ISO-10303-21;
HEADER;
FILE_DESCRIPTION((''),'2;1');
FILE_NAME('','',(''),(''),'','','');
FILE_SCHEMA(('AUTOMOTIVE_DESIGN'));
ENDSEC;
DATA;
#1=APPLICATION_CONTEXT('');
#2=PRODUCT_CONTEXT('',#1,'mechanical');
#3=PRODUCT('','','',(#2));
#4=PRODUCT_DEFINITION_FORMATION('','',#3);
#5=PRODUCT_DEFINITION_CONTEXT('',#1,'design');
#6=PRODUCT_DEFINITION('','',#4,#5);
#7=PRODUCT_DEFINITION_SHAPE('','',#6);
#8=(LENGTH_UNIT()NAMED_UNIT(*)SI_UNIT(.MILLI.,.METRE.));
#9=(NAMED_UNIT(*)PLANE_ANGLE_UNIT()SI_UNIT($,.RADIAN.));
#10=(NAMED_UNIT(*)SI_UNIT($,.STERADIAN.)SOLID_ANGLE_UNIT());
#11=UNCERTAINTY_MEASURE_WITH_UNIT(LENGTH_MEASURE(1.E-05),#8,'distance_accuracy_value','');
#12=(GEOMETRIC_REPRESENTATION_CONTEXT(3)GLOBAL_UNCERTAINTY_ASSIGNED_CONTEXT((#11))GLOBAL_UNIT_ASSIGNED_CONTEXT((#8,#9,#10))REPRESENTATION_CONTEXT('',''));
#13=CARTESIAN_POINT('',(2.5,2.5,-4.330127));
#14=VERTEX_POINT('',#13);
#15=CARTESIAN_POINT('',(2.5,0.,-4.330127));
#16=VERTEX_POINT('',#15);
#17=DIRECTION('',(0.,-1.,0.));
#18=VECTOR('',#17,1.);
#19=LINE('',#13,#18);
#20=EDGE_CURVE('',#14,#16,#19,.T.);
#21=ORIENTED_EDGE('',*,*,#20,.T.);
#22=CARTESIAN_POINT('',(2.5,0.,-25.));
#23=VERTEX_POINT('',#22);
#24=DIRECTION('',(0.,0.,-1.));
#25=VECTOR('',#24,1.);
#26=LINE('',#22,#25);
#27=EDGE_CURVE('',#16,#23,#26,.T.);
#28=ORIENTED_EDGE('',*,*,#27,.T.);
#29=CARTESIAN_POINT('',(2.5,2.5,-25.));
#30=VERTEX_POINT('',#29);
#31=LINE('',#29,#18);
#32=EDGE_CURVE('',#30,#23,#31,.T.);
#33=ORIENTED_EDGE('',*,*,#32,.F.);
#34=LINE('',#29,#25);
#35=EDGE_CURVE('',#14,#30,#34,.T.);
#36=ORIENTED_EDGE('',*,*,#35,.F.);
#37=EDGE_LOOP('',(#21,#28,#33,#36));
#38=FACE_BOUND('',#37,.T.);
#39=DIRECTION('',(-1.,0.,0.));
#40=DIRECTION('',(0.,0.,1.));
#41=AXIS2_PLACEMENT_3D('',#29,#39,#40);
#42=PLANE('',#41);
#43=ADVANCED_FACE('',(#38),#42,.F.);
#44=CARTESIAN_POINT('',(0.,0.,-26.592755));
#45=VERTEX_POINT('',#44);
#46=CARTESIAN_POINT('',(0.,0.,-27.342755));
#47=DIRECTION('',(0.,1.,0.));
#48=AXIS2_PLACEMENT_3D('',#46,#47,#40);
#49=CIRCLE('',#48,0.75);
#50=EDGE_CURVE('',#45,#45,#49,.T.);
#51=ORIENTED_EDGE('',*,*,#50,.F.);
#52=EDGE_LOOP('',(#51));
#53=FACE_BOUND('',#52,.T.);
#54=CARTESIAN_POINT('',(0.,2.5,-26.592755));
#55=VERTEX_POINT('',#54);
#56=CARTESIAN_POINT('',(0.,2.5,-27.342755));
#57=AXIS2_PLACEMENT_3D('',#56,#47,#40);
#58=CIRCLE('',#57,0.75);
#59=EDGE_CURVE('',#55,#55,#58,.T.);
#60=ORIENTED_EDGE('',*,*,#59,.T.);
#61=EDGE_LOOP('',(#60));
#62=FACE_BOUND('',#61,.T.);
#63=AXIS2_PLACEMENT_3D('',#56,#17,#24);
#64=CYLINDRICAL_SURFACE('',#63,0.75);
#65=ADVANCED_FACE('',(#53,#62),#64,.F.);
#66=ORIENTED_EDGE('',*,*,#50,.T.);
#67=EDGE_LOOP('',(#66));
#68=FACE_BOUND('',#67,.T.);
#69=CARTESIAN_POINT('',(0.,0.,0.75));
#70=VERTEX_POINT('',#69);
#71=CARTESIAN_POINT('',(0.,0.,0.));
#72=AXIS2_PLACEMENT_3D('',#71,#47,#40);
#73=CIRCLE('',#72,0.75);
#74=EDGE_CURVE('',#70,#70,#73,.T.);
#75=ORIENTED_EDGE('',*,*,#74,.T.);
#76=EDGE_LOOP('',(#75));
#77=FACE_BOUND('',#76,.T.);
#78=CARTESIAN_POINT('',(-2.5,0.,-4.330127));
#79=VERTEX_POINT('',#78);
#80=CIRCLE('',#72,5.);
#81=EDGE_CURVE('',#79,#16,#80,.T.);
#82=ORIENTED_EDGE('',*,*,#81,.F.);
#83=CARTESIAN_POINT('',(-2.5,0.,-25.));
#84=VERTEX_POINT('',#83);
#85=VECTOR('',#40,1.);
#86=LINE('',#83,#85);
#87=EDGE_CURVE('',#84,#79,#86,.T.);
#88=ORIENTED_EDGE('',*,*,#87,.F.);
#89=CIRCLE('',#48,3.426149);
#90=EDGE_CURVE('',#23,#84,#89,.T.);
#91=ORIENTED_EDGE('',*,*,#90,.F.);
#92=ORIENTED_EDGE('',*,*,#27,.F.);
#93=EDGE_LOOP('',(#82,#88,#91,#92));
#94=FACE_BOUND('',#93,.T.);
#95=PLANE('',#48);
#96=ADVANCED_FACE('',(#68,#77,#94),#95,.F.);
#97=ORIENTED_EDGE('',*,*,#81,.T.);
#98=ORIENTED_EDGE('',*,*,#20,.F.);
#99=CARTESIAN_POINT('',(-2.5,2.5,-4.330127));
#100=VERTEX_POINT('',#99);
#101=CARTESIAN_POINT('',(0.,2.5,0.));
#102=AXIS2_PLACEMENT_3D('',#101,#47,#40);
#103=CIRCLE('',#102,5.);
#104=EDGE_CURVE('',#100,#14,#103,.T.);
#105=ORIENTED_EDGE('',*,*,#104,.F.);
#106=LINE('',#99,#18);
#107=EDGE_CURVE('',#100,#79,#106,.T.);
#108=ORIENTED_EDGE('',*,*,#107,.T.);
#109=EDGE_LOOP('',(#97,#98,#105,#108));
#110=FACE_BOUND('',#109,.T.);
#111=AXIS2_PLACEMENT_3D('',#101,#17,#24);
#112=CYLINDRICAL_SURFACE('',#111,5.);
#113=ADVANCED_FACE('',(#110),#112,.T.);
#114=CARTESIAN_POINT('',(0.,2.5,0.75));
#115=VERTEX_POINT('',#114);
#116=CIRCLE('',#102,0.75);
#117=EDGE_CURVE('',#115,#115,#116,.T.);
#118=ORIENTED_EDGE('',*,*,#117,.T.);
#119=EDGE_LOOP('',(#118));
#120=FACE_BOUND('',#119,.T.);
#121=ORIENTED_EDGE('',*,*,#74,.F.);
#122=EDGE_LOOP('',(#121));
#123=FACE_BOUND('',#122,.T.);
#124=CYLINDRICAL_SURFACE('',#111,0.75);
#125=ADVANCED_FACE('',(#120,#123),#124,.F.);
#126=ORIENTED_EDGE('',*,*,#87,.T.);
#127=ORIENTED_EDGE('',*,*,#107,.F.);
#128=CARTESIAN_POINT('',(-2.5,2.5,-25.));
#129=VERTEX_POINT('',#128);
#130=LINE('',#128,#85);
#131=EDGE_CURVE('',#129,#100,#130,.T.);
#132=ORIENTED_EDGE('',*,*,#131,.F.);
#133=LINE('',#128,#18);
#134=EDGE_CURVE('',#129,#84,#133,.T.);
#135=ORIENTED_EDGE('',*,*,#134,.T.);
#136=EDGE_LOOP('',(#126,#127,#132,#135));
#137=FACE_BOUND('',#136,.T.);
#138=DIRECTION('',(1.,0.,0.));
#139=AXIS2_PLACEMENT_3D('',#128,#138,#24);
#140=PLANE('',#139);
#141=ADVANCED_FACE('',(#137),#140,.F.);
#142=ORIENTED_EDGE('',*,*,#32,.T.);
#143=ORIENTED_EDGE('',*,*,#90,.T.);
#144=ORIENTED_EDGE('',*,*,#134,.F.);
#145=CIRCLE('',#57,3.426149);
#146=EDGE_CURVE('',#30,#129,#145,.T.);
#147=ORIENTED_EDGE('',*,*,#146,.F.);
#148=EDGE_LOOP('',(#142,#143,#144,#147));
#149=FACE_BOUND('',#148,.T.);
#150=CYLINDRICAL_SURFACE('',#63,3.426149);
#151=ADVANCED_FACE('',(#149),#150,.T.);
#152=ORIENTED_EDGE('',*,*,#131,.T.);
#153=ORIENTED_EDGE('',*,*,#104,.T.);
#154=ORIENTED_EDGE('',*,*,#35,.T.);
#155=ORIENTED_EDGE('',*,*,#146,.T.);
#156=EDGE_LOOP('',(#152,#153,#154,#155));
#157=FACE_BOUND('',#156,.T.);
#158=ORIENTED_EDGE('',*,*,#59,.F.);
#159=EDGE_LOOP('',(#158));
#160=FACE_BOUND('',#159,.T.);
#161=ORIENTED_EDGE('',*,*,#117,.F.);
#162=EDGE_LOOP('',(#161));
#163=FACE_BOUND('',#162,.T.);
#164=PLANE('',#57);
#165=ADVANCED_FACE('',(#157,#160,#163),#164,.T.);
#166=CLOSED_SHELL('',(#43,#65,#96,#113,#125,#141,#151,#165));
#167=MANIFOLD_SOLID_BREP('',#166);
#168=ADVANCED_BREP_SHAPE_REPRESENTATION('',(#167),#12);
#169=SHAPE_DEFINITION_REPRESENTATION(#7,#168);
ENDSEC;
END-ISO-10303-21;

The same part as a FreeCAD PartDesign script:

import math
import FreeCAD as App
import Part
import Sketcher
from FreeCAD import Vector
Q = App.Units.Quantity

doc = App.newDocument("Part")
body = doc.addObject("PartDesign::Body", "Body")

sketch1 = body.newObject("Sketcher::SketchObject", "Sketch")
sketch1.AttachmentSupport = (doc.getObject("XZ_Plane"), [""])
sketch1.MapMode = "FlatFace"
sketch1.addGeometry([
    Part.LineSegment(Vector(-2.5, -25, 0), Vector(-2.5, -4.330127, 0)),
    Part.ArcOfCircle(Part.Circle(Vector(0, 0, 0), Vector(0, 0, 1), 5), math.radians(-60), math.radians(240)),
    Part.LineSegment(Vector(2.5, -4.330127, 0), Vector(2.5, -25, 0)),
    Part.ArcOfCircle(Part.Circle(Vector(0, -27.342755, 0), Vector(0, 0, 1), 3.426149), math.radians(136.859751), math.radians(403.140249)),
    Part.Circle(Vector(0, 0, 0), Vector(0, 0, 1), 0.75),
    Part.Circle(Vector(0, -27.342755, 0), Vector(0, 0, 1), 0.75),
], False)
sketch1.addConstraint([
    Sketcher.Constraint("Coincident", 0, 2, 1, 2),
    Sketcher.Constraint("Coincident", 1, 1, 2, 1),
    Sketcher.Constraint("Coincident", 2, 2, 3, 2),
    Sketcher.Constraint("Coincident", 3, 1, 0, 1),
    Sketcher.Constraint("Vertical", 0),
    Sketcher.Constraint("Vertical", 2),
    Sketcher.Constraint("Coincident", 1, 3, -1, 1),
    Sketcher.Constraint("Coincident", 4, 3, -1, 1),
    Sketcher.Constraint("Coincident", 5, 3, 3, 3),
    Sketcher.Constraint("Equal", 4, 5),
    Sketcher.Constraint("Symmetric", 2, 2, 3, 1, -2),
    Sketcher.Constraint("Radius", 1, Q("5 mm")),
    Sketcher.Constraint("Diameter", 4, Q("1.5 mm")),
    Sketcher.Constraint("DistanceY", 2, 2, -1, 1, Q("25 mm")),
    Sketcher.Constraint("DistanceX", 0, 2, 1, 1, Q("5 mm")),
    Sketcher.Constraint("Radius", 3, Q("3.426149 mm")),
])
pad1 = body.newObject("PartDesign::Pad", "Pad")
pad1.Profile = sketch1
pad1.Length = 2.5
pad1.Reversed = True

doc.recompute()
